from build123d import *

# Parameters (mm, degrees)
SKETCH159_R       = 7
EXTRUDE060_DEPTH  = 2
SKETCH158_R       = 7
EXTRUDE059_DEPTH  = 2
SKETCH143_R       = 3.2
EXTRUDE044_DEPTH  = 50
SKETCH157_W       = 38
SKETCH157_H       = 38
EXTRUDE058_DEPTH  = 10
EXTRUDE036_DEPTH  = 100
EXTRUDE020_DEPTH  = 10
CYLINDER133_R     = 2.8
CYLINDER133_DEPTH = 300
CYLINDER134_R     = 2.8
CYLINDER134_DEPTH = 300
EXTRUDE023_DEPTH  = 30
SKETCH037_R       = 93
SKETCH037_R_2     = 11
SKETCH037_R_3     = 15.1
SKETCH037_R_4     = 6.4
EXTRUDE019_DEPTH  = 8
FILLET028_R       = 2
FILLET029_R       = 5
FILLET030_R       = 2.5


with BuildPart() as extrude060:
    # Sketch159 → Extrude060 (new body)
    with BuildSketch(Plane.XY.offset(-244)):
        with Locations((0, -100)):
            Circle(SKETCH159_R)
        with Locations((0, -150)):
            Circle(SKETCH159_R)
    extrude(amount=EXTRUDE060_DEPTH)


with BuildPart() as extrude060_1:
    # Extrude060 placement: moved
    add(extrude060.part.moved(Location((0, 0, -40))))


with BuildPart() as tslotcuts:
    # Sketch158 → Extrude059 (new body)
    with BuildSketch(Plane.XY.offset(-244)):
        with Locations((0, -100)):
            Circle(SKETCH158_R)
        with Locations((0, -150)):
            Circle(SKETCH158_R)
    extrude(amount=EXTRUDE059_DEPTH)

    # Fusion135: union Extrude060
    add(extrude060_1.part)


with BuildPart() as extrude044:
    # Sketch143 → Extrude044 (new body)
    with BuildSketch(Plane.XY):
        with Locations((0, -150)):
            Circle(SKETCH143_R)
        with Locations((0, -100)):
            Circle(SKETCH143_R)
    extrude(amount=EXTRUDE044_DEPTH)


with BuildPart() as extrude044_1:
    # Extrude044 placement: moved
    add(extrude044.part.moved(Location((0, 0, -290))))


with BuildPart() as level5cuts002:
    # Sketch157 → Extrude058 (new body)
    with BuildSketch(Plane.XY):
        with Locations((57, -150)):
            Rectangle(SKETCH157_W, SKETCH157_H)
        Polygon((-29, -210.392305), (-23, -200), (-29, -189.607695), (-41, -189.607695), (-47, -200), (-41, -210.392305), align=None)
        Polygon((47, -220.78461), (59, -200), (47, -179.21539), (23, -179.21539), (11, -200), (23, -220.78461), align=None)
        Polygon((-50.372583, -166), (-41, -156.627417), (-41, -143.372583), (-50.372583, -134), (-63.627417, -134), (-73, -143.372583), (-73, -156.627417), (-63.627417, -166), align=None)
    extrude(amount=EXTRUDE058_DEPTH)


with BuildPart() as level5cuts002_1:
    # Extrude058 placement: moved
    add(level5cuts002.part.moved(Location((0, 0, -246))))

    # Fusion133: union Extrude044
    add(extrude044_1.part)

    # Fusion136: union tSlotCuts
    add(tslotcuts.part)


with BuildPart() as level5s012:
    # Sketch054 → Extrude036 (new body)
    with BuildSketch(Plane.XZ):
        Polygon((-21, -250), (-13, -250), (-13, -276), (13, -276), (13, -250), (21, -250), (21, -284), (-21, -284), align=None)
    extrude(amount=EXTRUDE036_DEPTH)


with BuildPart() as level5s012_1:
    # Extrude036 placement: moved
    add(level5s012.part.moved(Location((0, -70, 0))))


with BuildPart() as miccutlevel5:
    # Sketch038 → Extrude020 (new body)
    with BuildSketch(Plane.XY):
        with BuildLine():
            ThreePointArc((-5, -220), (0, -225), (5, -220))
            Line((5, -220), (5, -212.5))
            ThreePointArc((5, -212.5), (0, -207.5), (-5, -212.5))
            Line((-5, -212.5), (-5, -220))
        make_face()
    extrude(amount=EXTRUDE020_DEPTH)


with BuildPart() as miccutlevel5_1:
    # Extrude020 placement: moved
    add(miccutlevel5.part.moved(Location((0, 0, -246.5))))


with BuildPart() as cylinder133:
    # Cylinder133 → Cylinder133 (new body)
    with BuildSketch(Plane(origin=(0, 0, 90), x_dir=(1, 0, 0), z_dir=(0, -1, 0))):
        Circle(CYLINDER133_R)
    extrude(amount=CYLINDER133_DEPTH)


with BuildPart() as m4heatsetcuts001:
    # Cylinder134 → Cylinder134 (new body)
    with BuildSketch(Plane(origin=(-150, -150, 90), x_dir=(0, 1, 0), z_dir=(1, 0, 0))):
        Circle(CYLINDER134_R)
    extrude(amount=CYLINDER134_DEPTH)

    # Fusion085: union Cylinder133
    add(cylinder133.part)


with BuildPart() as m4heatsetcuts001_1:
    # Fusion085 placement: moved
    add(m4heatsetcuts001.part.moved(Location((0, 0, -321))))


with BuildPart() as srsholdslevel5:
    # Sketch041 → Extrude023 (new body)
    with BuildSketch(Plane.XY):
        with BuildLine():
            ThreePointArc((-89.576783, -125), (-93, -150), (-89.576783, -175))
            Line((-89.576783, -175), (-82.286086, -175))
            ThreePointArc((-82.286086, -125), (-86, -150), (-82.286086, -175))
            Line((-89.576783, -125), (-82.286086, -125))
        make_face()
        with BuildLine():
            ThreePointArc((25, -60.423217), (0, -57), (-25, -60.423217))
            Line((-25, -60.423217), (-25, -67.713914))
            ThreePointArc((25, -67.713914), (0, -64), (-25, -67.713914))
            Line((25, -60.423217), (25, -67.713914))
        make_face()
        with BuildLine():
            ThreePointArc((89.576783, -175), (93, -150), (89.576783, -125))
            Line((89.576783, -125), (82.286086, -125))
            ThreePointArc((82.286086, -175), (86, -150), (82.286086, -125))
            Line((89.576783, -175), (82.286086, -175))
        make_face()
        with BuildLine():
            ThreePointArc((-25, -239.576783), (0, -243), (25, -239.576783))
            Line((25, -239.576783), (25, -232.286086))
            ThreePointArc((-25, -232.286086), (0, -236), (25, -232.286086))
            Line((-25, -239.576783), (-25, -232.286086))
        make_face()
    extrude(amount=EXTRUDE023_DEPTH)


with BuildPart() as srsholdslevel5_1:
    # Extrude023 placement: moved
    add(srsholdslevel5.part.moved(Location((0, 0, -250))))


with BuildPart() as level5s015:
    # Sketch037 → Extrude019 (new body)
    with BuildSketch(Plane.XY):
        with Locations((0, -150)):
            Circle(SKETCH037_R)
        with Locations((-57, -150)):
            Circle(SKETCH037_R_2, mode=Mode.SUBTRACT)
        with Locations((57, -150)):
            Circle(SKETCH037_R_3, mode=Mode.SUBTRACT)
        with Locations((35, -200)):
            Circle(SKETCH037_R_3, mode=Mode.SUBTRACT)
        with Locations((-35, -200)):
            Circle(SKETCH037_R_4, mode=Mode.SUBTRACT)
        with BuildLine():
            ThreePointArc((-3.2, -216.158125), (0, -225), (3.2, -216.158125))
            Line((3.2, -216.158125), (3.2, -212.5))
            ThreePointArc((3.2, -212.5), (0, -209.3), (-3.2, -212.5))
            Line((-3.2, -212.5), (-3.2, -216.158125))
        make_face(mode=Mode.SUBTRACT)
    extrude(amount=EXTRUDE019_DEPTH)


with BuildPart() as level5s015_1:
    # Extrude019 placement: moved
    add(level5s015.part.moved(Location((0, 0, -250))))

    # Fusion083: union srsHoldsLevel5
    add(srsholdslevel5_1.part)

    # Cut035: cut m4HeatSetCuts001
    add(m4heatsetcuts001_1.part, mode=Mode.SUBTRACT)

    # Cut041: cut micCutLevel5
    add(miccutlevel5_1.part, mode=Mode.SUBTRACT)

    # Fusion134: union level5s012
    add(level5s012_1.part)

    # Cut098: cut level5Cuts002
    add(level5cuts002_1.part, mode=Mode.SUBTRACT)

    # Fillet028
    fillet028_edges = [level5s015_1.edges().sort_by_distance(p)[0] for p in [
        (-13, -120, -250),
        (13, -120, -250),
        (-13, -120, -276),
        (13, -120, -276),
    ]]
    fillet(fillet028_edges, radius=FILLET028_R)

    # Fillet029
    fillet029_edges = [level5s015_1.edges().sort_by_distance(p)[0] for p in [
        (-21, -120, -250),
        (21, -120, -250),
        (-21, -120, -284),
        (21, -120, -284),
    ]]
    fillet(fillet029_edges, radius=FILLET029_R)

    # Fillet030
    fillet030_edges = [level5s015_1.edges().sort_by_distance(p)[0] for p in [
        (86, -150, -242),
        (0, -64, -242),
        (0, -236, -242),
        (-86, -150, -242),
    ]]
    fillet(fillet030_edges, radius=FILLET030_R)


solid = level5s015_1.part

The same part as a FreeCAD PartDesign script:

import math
import FreeCAD as App
import Part
import Sketcher
from FreeCAD import Vector
Q = App.Units.Quantity


def edges_at(feature, points):
    """Names of the edges that pass closest to the given points."""
    edges = feature.Shape.Edges
    near = lambda p: min(range(len(edges)), key=lambda i: edges[i].distToShape(Part.Vertex(*p))[0])
    return sorted({f"Edge{near(p) + 1}" for p in points})


def add_polygon(sketch, points):
    """Adds a closed chain of lines whose ends are joined by coincident constraints."""
    first, n = sketch.GeometryCount, len(points)
    for a, b in zip(points, points[1:] + points[:1]):
        sketch.addGeometry(Part.LineSegment(App.Vector(*a, 0), App.Vector(*b, 0)), False)
    for i in range(n):
        sketch.addConstraint(Sketcher.Constraint("Coincident", first + i, 2, first + (i + 1) % n, 1))

doc = App.newDocument("Part")
body = doc.addObject("PartDesign::Body", "Body")
body.AllowCompound = True

sketch1 = body.newObject("Sketcher::SketchObject", "Sketch")
sketch1.AttachmentSupport = (doc.getObject("XY_Plane"), [""])
sketch1.MapMode = "FlatFace"
sketch1.AttachmentOffset = App.Placement(Vector(0, 0, -244), App.Rotation())
sketch1.addGeometry(Part.Circle(Vector(0, -100, 0), Vector(0, 0, 1), 7), False)
sketch1.addGeometry(Part.Circle(Vector(0, -150, 0), Vector(0, 0, 1), 7), False)
sketch1.addConstraint(Sketcher.Constraint("Equal", 0, 1))
sketch1.addConstraint(Sketcher.Constraint("PointOnObject", 0, 3, -2))
sketch1.addConstraint(Sketcher.Constraint("PointOnObject", 1, 3, -2))
sketch1.addConstraint(Sketcher.Constraint("Diameter", 0, Q("14 mm")))
sketch1.addConstraint(Sketcher.Constraint("DistanceY", 0, 3, -1, 1, Q("100 mm")))
sketch1.addConstraint(Sketcher.Constraint("DistanceY", 1, 3, -1, 1, Q("150 mm")))
pad1 = body.newObject("PartDesign::Pad", "Pad")
pad1.Profile = sketch1
pad1.Length = 2
body2 = doc.addObject("PartDesign::Body", "Body001")
body2.AllowCompound = True
doc.recompute()

body.Placement = App.Placement(Vector(0, 0, -40), App.Rotation(Vector(0, 0, 1), 0))
boolean = body2.newObject("PartDesign::Boolean", "Boolean")
boolean.Type = "Fuse"
boolean.addObjects([body])
body3 = doc.addObject("PartDesign::Body", "Body002")
body3.AllowCompound = True

sketch2 = body3.newObject("Sketcher::SketchObject", "Sketch001")
sketch2.AttachmentSupport = (doc.getObject("XY_Plane002"), [""])
sketch2.MapMode = "FlatFace"
sketch2.AttachmentOffset = App.Placement(Vector(0, 0, -244), App.Rotation())
sketch2.addGeometry(Part.Circle(Vector(0, -100, 0), Vector(0, 0, 1), 7), False)
sketch2.addGeometry(Part.Circle(Vector(0, -150, 0), Vector(0, 0, 1), 7), False)
sketch2.addConstraint(Sketcher.Constraint("Equal", 0, 1))
sketch2.addConstraint(Sketcher.Constraint("PointOnObject", 0, 3, -2))
sketch2.addConstraint(Sketcher.Constraint("PointOnObject", 1, 3, -2))
sketch2.addConstraint(Sketcher.Constraint("Diameter", 0, Q("14 mm")))
sketch2.addConstraint(Sketcher.Constraint("DistanceY", 0, 3, -1, 1, Q("100 mm")))
sketch2.addConstraint(Sketcher.Constraint("DistanceY", 1, 3, -1, 1, Q("150 mm")))
pad2 = body3.newObject("PartDesign::Pad", "Pad001")
pad2.Profile = sketch2
pad2.Length = 2
doc.recompute()

boolean2 = body3.newObject("PartDesign::Boolean", "Boolean001")
boolean2.Type = "Fuse"
boolean2.addObjects([body2])
body4 = doc.addObject("PartDesign::Body", "Body003")
body4.AllowCompound = True

sketch3 = body4.newObject("Sketcher::SketchObject", "Sketch002")
sketch3.AttachmentSupport = (doc.getObject("XY_Plane003"), [""])
sketch3.MapMode = "FlatFace"
sketch3.addGeometry(Part.Circle(Vector(0, -150, 0), Vector(0, 0, 1), 3.2), False)
sketch3.addGeometry(Part.Circle(Vector(0, -100, 0), Vector(0, 0, 1), 3.2), False)
sketch3.addConstraint(Sketcher.Constraint("Equal", 0, 1))
sketch3.addConstraint(Sketcher.Constraint("PointOnObject", 0, 3, -2))
sketch3.addConstraint(Sketcher.Constraint("PointOnObject", 1, 3, -2))
sketch3.addConstraint(Sketcher.Constraint("Diameter", 0, Q("6.4 mm")))
sketch3.addConstraint(Sketcher.Constraint("DistanceY", 0, 3, -1, 1, Q("150 mm")))
sketch3.addConstraint(Sketcher.Constraint("DistanceY", 1, 3, -1, 1, Q("100 mm")))
pad3 = body4.newObject("PartDesign::Pad", "Pad002")
pad3.Profile = sketch3
pad3.Length = 50
body5 = doc.addObject("PartDesign::Body", "Body004")
body5.AllowCompound = True
doc.recompute()

body4.Placement = App.Placement(Vector(0, 0, -290), App.Rotation(Vector(0, 0, 1), 0))
boolean3 = body5.newObject("PartDesign::Boolean", "Boolean002")
boolean3.Type = "Fuse"
boolean3.addObjects([body4])
body6 = doc.addObject("PartDesign::Body", "Body005")
body6.AllowCompound = True

sketch4 = body6.newObject("Sketcher::SketchObject", "Sketch003")
sketch4.AttachmentSupport = (doc.getObject("XY_Plane005"), [""])
sketch4.MapMode = "FlatFace"
add_polygon(sketch4, [(38, -131), (38, -169), (76, -169), (76, -131)])
add_polygon(sketch4, [(-29, -210.392305), (-23, -200), (-29, -189.607695), (-41, -189.607695), (-47, -200), (-41, -210.392305)])
add_polygon(sketch4, [(47, -220.78461), (59, -200), (47, -179.21539), (23, -179.21539), (11, -200), (23, -220.78461)])
add_polygon(sketch4, [(-50.372583, -166), (-41, -156.627417), (-41, -143.372583), (-50.372583, -134), (-63.627417, -134), (-73, -143.372583), (-73, -156.627417), (-63.627417, -166)])
sketch4.addConstraint(Sketcher.Constraint("Vertical", 0))
sketch4.addConstraint(Sketcher.Constraint("Horizontal", 1))
sketch4.addConstraint(Sketcher.Constraint("Vertical", 2))
sketch4.addConstraint(Sketcher.Constraint("Horizontal", 3))
sketch4.addConstraint(Sketcher.Constraint("Horizontal", 6))
sketch4.addConstraint(Sketcher.Constraint("Horizontal", 9))
sketch4.addConstraint(Sketcher.Constraint("Horizontal", 12))
sketch4.addConstraint(Sketcher.Constraint("Horizontal", 15))
sketch4.addConstraint(Sketcher.Constraint("Vertical", 17))
sketch4.addConstraint(Sketcher.Constraint("Horizontal", 19))
sketch4.addConstraint(Sketcher.Constraint("Vertical", 21))
sketch4.addConstraint(Sketcher.Constraint("Horizontal", 23))
sketch4.addConstraint(Sketcher.Constraint("Parallel", 4, 7))
sketch4.addConstraint(Sketcher.Constraint("Parallel", 5, 8))
sketch4.addConstraint(Sketcher.Constraint("Parallel", 7, 10))
sketch4.addConstraint(Sketcher.Constraint("Parallel", 8, 11))
sketch4.addConstraint(Sketcher.Constraint("Parallel", 10, 13))
sketch4.addConstraint(Sketcher.Constraint("Parallel", 11, 14))
sketch4.addConstraint(Sketcher.Constraint("Perpendicular", 16, 18))
sketch4.addConstraint(Sketcher.Constraint("Perpendicular", 18, 20))
sketch4.addConstraint(Sketcher.Constraint("Perpendicular", 20, 22))
sketch4.addConstraint(Sketcher.Constraint("Horizontal", 4, 2, 7, 2))
sketch4.addConstraint(Sketcher.Constraint("Horizontal", 7, 2, 10, 2))
sketch4.addConstraint(Sketcher.Constraint("Horizontal", 10, 2, 13, 2))
sketch4.addConstraint(Sketcher.Constraint("Horizontal", 17, 2, 20, 2))
sketch4.addConstraint(Sketcher.Constraint("Horizontal", 16, 2, 21, 2))
sketch4.addConstraint(Sketcher.Constraint("Vertical", 6, 2, 8, 2))
sketch4.addConstraint(Sketcher.Constraint("Vertical", 5, 2, 9, 2))
sketch4.addConstraint(Sketcher.Constraint("Vertical", 12, 2, 14, 2))
sketch4.addConstraint(Sketcher.Constraint("Vertical", 8, 2, 16, 2))
sketch4.addConstraint(Sketcher.Constraint("Vertical", 19, 2, 22, 2))
sketch4.addConstraint(Sketcher.Constraint("Vertical", 18, 2, 23, 2))
sketch4.addConstraint(Sketcher.Constraint("Equal", 3, 0))
sketch4.addConstraint(Sketcher.Constraint("Equal", 23, 17))
sketch4.addConstraint(Sketcher.Constraint("DistanceX", 1, 1, 1, 2, Q("38 mm")))
sketch4.addConstraint(Sketcher.Constraint("DistanceX", 6, 2, 6, 1, Q("12 mm")))
sketch4.addConstraint(Sketcher.Constraint("DistanceX", 12, 2, 12, 1, Q("24 mm")))
sketch4.addConstraint(Sketcher.Constraint("Angle", 4, Q("60 deg")))
sketch4.addConstraint(Sketcher.Constraint("Distance", 4, Q("12 mm")))
sketch4.addConstraint(Sketcher.Constraint("Distance", 10, Q("24 mm")))
sketch4.addConstraint(Sketcher.Constraint("DistanceX", -1, 1, 0, 2, Q("38 mm")))
sketch4.addConstraint(Sketcher.Constraint("DistanceY", 0, 2, -1, 1, Q("169 mm")))
sketch4.addConstraint(Sketcher.Constraint("DistanceX", 4, 2, -1, 1, Q("23 mm")))
sketch4.addConstraint(Sketcher.Constraint("DistanceY", 4, 2, -1, 1, Q("200 mm")))
sketch4.addConstraint(Sketcher.Constraint("DistanceX", -1, 1, 10, 2, Q("59 mm")))
sketch4.addConstraint(Sketcher.Constraint("DistanceY", 18, 2, -1, 1, Q("134 mm")))
sketch4.addConstraint(Sketcher.Constraint("DistanceX", 20, 2, -1, 1, Q("73 mm")))
sketch4.addConstraint(Sketcher.Constraint("DistanceX", 19, 2, 19, 1, Q("13.254834 mm")))
pad4 = body6.newObject("PartDesign::Pad", "Pad003")
pad4.Profile = sketch4
pad4.Length = 10
body7 = doc.addObject("PartDesign::Body", "Body006")
body7.AllowCompound = True
doc.recompute()

body6.Placement = App.Placement(Vector(0, 0, -246), App.Rotation(Vector(0, 0, 1), 0))
boolean4 = body7.newObject("PartDesign::Boolean", "Boolean003")
boolean4.Type = "Fuse"
boolean4.addObjects([body6])
doc.recompute()

boolean5 = body7.newObject("PartDesign::Boolean", "Boolean004")
boolean5.Type = "Fuse"
boolean5.addObjects([body5])
doc.recompute()

boolean6 = body7.newObject("PartDesign::Boolean", "Boolean005")
boolean6.Type = "Fuse"
boolean6.addObjects([body3])
body8 = doc.addObject("PartDesign::Body", "Body007")

sketch5 = body8.newObject("Sketcher::SketchObject", "Sketch004")
sketch5.AttachmentSupport = (doc.getObject("XZ_Plane007"), [""])
sketch5.MapMode = "FlatFace"
add_polygon(sketch5, [(-13, -250), (-21, -250), (-21, -284), (21, -284), (21, -250), (13, -250), (13, -276), (-13, -276)])
sketch5.addConstraint(Sketcher.Constraint("Horizontal", 0))
sketch5.addConstraint(Sketcher.Constraint("Vertical", 1))
sketch5.addConstraint(Sketcher.Constraint("Horizontal", 2))
sketch5.addConstraint(Sketcher.Constraint("Vertical", 3))
sketch5.addConstraint(Sketcher.Constraint("Horizontal", 4))
sketch5.addConstraint(Sketcher.Constraint("Vertical", 5))
sketch5.addConstraint(Sketcher.Constraint("Horizontal", 6))
sketch5.addConstraint(Sketcher.Constraint("Vertical", 7))
sketch5.addConstraint(Sketcher.Constraint("Symmetric", 0, 2, 3, 2, -2))
sketch5.addConstraint(Sketcher.Constraint("Equal", 0, 4))
sketch5.addConstraint(Sketcher.Constraint("Equal", 6, 5))
sketch5.addConstraint(Sketcher.Constraint("DistanceX", 0, 2, 0, 1, Q("8 mm")))
sketch5.addConstraint(Sketcher.Constraint("DistanceX", 2, 1, 2, 2, Q("42 mm")))
sketch5.addConstraint(Sketcher.Constraint("DistanceY", 1, 2, 1, 1, Q("34 mm")))
sketch5.addConstraint(Sketcher.Constraint("DistanceY", 0, 2, -1, 1, Q("250 mm")))
pad5 = body8.newObject("PartDesign::Pad", "Pad004")
pad5.Profile = sketch5
pad5.Length = 100
body9 = doc.addObject("PartDesign::Body", "Body008")
doc.recompute()

body8.Placement = App.Placement(Vector(0, -70, 0), App.Rotation(Vector(0, 0, 1), 0))
boolean7 = body9.newObject("PartDesign::Boolean", "Boolean006")
boolean7.Type = "Fuse"
boolean7.addObjects([body8])
body10 = doc.addObject("PartDesign::Body", "Body009")

sketch6 = body10.newObject("Sketcher::SketchObject", "Sketch005")
sketch6.AttachmentSupport = (doc.getObject("XY_Plane009"), [""])
sketch6.MapMode = "FlatFace"
sketch6.addGeometry(Part.ArcOfCircle(Part.Circle(Vector(0, -220, 0), Vector(0, 0, 1), 5), math.radians(180), math.radians(360)), False)
sketch6.addGeometry(Part.LineSegment(Vector(5, -220, 0), Vector(5, -212.5, 0)), False)
sketch6.addGeometry(Part.ArcOfCircle(Part.Circle(Vector(0, -212.5, 0), Vector(0, 0, 1), 5), math.radians(0), math.radians(180)), False)
sketch6.addGeometry(Part.LineSegment(Vector(-5, -212.5, 0), Vector(-5, -220, 0)), False)
sketch6.addConstraint(Sketcher.Constraint("Tangent", 0, 2, 1, 1))
sketch6.addConstraint(Sketcher.Constraint("Tangent", 1, 2, 2, 1))
sketch6.addConstraint(Sketcher.Constraint("Tangent", 2, 2, 3, 1))
sketch6.addConstraint(Sketcher.Constraint("Tangent", 3, 2, 0, 1))
sketch6.addConstraint(Sketcher.Constraint("Vertical", 1))
sketch6.addConstraint(Sketcher.Constraint("Vertical", 3))
sketch6.addConstraint(Sketcher.Constraint("PointOnObject", 0, 3, -2))
sketch6.addConstraint(Sketcher.Constraint("Radius", 0, Q("5 mm")))
sketch6.addConstraint(Sketcher.Constraint("DistanceY", 1, 1, 1, 2, Q("7.5 mm")))
sketch6.addConstraint(Sketcher.Constraint("DistanceY", 0, 3, -1, 1, Q("220 mm")))
pad6 = body10.newObject("PartDesign::Pad", "Pad005")
pad6.Profile = sketch6
pad6.Length = 10
body11 = doc.addObject("PartDesign::Body", "Body010")
doc.recompute()

body10.Placement = App.Placement(Vector(0, 0, -246.5), App.Rotation(Vector(0, 0, 1), 0))
boolean8 = body11.newObject("PartDesign::Boolean", "Boolean007")
boolean8.Type = "Fuse"
boolean8.addObjects([body10])
body12 = doc.addObject("PartDesign::Body", "Body011")

sketch7 = body12.newObject("Sketcher::SketchObject", "Sketch006")
sketch7.AttachmentSupport = (doc.getObject("XZ_Plane011"), [""])
sketch7.MapMode = "FlatFace"
sketch7.addGeometry(Part.Circle(Vector(0, 90, 0), Vector(0, 0, 1), 2.8), False)
sketch7.addConstraint(Sketcher.Constraint("PointOnObject", 0, 3, -2))
sketch7.addConstraint(Sketcher.Constraint("Diameter", 0, Q("5.6 mm")))
sketch7.addConstraint(Sketcher.Constraint("DistanceY", -1, 1, 0, 3, Q("90 mm")))
pad7 = body12.newObject("PartDesign::Pad", "Pad006")
pad7.Profile = sketch7
pad7.Length = 300
body13 = doc.addObject("PartDesign::Body", "Body012")

sketch8 = body13.newObject("Sketcher::SketchObject", "Sketch007")
sketch8.AttachmentSupport = (doc.getObject("YZ_Plane012"), [""])
sketch8.MapMode = "FlatFace"
sketch8.AttachmentOffset = App.Placement(Vector(0, 0, -150), App.Rotation())
sketch8.addGeometry(Part.Circle(Vector(-150, 90, 0), Vector(0, 0, 1), 2.8), False)
sketch8.addConstraint(Sketcher.Constraint("Diameter", 0, Q("5.6 mm")))
sketch8.addConstraint(Sketcher.Constraint("DistanceX", 0, 3, -1, 1, Q("150 mm")))
sketch8.addConstraint(Sketcher.Constraint("DistanceY", -1, 1, 0, 3, Q("90 mm")))
pad8 = body13.newObject("PartDesign::Pad", "Pad007")
pad8.Profile = sketch8
pad8.Length = 300
doc.recompute()

boolean9 = body13.newObject("PartDesign::Boolean", "Boolean008")
boolean9.Type = "Fuse"
boolean9.addObjects([body12])
body14 = doc.addObject("PartDesign::Body", "Body013")
doc.recompute()

body13.Placement = App.Placement(Vector(0, 0, -321), App.Rotation(Vector(0, 0, 1), 0))
boolean10 = body14.newObject("PartDesign::Boolean", "Boolean009")
boolean10.Type = "Fuse"
boolean10.addObjects([body13])
body15 = doc.addObject("PartDesign::Body", "Body014")
body15.AllowCompound = True

sketch9 = body15.newObject("Sketcher::SketchObject", "Sketch008")
sketch9.AttachmentSupport = (doc.getObject("XY_Plane014"), [""])
sketch9.MapMode = "FlatFace"
sketch9.addGeometry(Part.ArcOfCircle(Part.Circle(Vector(0.000008, -150, 0), Vector(0, 0, 1), 93.000008), math.radians(164.406106), math.radians(195.593894)), False)
sketch9.addGeometry(Part.LineSegment(Vector(-89.576783, -175, 0), Vector(-82.286086, -175, 0)), False)
sketch9.addGeometry(Part.ArcOfCircle(Part.Circle(Vector(-0.000007, -150, 0), Vector(0, 0, 1), 85.999993), math.radians(163.100269), math.radians(196.899731)), False)
sketch9.addGeometry(Part.LineSegment(Vector(-82.286086, -125, 0), Vector(-89.576783, -125, 0)), False)
sketch9.addGeometry(Part.ArcOfCircle(Part.Circle(Vector(0, -150.000008, 0), Vector(0, 0, 1), 93.000008), math.radians(74.406106), math.radians(105.593894)), False)
sketch9.addGeometry(Part.LineSegment(Vector(-25, -60.423217, 0), Vector(-25, -67.713914, 0)), False)
sketch9.addGeometry(Part.ArcOfCircle(Part.Circle(Vector(0, -149.999993, 0), Vector(0, 0, 1), 85.999993), math.radians(73.100269), math.radians(106.899731)), False)
sketch9.addGeometry(Part.LineSegment(Vector(25, -67.713914, 0), Vector(25, -60.423217, 0)), False)
sketch9.addGeometry(Part.ArcOfCircle(Part.Circle(Vector(-0.000008, -150, 0), Vector(0, 0, 1), 93.000008), math.radians(-15.593894), math.radians(15.593894)), False)
sketch9.addGeometry(Part.LineSegment(Vector(89.576783, -125, 0), Vector(82.286086, -125, 0)), False)
sketch9.addGeometry(Part.ArcOfCircle(Part.Circle(Vector(0.000007, -150, 0), Vector(0, 0, 1), 85.999993), math.radians(-16.899731), math.radians(16.899731)), False)
sketch9.addGeometry(Part.LineSegment(Vector(82.286086, -175, 0), Vector(89.576783, -175, 0)), False)
sketch9.addGeometry(Part.ArcOfCircle(Part.Circle(Vector(0, -149.999992, 0), Vector(0, 0, 1), 93.000008), math.radians(-105.593894), math.radians(-74.406106)), False)
sketch9.addGeometry(Part.LineSegment(Vector(25, -239.576783, 0), Vector(25, -232.286086, 0)), False)
sketch9.addGeometry(Part.ArcOfCircle(Part.Circle(Vector(0, -150.000007, 0), Vector(0, 0, 1), 85.999993), math.radians(-106.899731), math.radians(-73.100269)), False)
sketch9.addGeometry(Part.LineSegment(Vector(-25, -232.286086, 0), Vector(-25, -239.576783, 0)), False)
sketch9.addConstraint(Sketcher.Constraint("Coincident", 0, 2, 1, 1))
sketch9.addConstraint(Sketcher.Constraint("Coincident", 1, 2, 2, 2))
sketch9.addConstraint(Sketcher.Constraint("Coincident", 2, 1, 3, 1))
sketch9.addConstraint(Sketcher.Constraint("Coincident", 3, 2, 0, 1))
sketch9.addConstraint(Sketcher.Constraint("Coincident", 4, 2, 5, 1))
sketch9.addConstraint(Sketcher.Constraint("Coincident", 5, 2, 6, 2))
sketch9.addConstraint(Sketcher.Constraint("Coincident", 6, 1, 7, 1))
sketch9.addConstraint(Sketcher.Constraint("Coincident", 7, 2, 4, 1))
sketch9.addConstraint(Sketcher.Constraint("Coincident", 8, 2, 9, 1))
sketch9.addConstraint(Sketcher.Constraint("Coincident", 9, 2, 10, 2))
sketch9.addConstraint(Sketcher.Constraint("Coincident", 10, 1, 11, 1))
sketch9.addConstraint(Sketcher.Constraint("Coincident", 11, 2, 8, 1))
sketch9.addConstraint(Sketcher.Constraint("Coincident", 12, 2, 13, 1))
sketch9.addConstraint(Sketcher.Constraint("Coincident", 13, 2, 14, 2))
sketch9.addConstraint(Sketcher.Constraint("Coincident", 14, 1, 15, 1))
sketch9.addConstraint(Sketcher.Constraint("Coincident", 15, 2, 12, 1))
sketch9.addConstraint(Sketcher.Constraint("Horizontal", 1))
sketch9.addConstraint(Sketcher.Constraint("Horizontal", 3))
sketch9.addConstraint(Sketcher.Constraint("Vertical", 5))
sketch9.addConstraint(Sketcher.Constraint("Vertical", 7))
sketch9.addConstraint(Sketcher.Constraint("Horizontal", 9))
sketch9.addConstraint(Sketcher.Constraint("Horizontal", 11))
sketch9.addConstraint(Sketcher.Constraint("Vertical", 13))
sketch9.addConstraint(Sketcher.Constraint("Vertical", 15))
sketch9.addConstraint(Sketcher.Constraint("Coincident", 6, 3, 2, 3))
sketch9.addConstraint(Sketcher.Constraint("Coincident", 8, 3, 2, 3))
sketch9.addConstraint(Sketcher.Constraint("Coincident", 10, 3, 0, 3))
sketch9.addConstraint(Sketcher.Constraint("Coincident", 12, 3, 6, 3))
sketch9.addConstraint(Sketcher.Constraint("Coincident", 14, 3, 2, 3))
sketch9.addConstraint(Sketcher.Constraint("PointOnObject", 4, 3, -2))
sketch9.addConstraint(Sketcher.Constraint("PointOnObject", 6, 3, -2))
sketch9.addConstraint(Sketcher.Constraint("DistanceY", 0, 3, -1, 1, Q("150 mm")))
sketch9.addConstraint(Sketcher.Constraint("DistanceY", 2, 3, -1, 1, Q("150 mm")))
sketch9.addConstraint(Sketcher.Constraint("DistanceY", 0, 2, -1, 1, Q("175 mm")))
sketch9.addConstraint(Sketcher.Constraint("DistanceY", 2, 1, -1, 1, Q("125 mm")))
sketch9.addConstraint(Sketcher.Constraint("DistanceX", 4, 2, -1, 1, Q("25 mm")))
sketch9.addConstraint(Sketcher.Constraint("DistanceX", -1, 1, 6, 1, Q("25 mm")))
sketch9.addConstraint(Sketcher.Constraint("DistanceY", 8, 2, -1, 1, Q("125 mm")))
sketch9.addConstraint(Sketcher.Constraint("DistanceY", 10, 1, -1, 1, Q("175 mm")))
sketch9.addConstraint(Sketcher.Constraint("DistanceX", -1, 1, 12, 2, Q("25 mm")))
sketch9.addConstraint(Sketcher.Constraint("DistanceX", 14, 1, -1, 1, Q("25 mm")))
sketch9.addConstraint(Sketcher.Constraint("Radius", 0, Q("93.000008 mm")))
sketch9.addConstraint(Sketcher.Constraint("Radius", 2, Q("85.999993 mm")))
sketch9.addConstraint(Sketcher.Constraint("Radius", 4, Q("93.000008 mm")))
sketch9.addConstraint(Sketcher.Constraint("Radius", 6, Q("85.999993 mm")))
sketch9.addConstraint(Sketcher.Constraint("Radius", 8, Q("93.000008 mm")))
sketch9.addConstraint(Sketcher.Constraint("Radius", 10, Q("85.999993 mm")))
sketch9.addConstraint(Sketcher.Constraint("Radius", 12, Q("93.000008 mm")))
sketch9.addConstraint(Sketcher.Constraint("Radius", 14, Q("85.999993 mm")))
sketch9.addConstraint(Sketcher.Constraint("DistanceX", 1, 1, 1, 2, Q("7.290697 mm")))
sketch9.addConstraint(Sketcher.Constraint("DistanceY", 5, 2, 5, 1, Q("7.290697 mm")))
pad9 = body15.newObject("PartDesign::Pad", "Pad008")
pad9.Profile = sketch9
pad9.Length = 30
body16 = doc.addObject("PartDesign::Body", "Body015")
body16.AllowCompound = True
doc.recompute()

body15.Placement = App.Placement(Vector(0, 0, -250), App.Rotation(Vector(0, 0, 1), 0))
boolean11 = body16.newObject("PartDesign::Boolean", "Boolean010")
boolean11.Type = "Fuse"
boolean11.addObjects([body15])
body17 = doc.addObject("PartDesign::Body", "Body016")

sketch10 = body17.newObject("Sketcher::SketchObject", "Sketch009")
sketch10.AttachmentSupport = (doc.getObject("XY_Plane016"), [""])
sketch10.MapMode = "FlatFace"
sketch10.addGeometry(Part.Circle(Vector(0, -150, 0), Vector(0, 0, 1), 93), False)
sketch10.addGeometry(Part.ArcOfCircle(Part.Circle(Vector(0, -220, 0), Vector(0, 0, 1), 5), math.radians(129.791818), math.radians(410.208182)), False)
sketch10.addGeometry(Part.LineSegment(Vector(-3.2, -216.158125, 0), Vector(-3.2, -212.5, 0)), False)
sketch10.addGeometry(Part.ArcOfCircle(Part.Circle(Vector(0, -212.5, 0), Vector(0, 0, 1), 3.2), math.radians(0), math.radians(180)), False)
sketch10.addGeometry(Part.LineSegment(Vector(3.2, -212.5, 0), Vector(3.2, -216.158125, 0)), False)
sketch10.addGeometry(Part.Circle(Vector(-35, -200, 0), Vector(0, 0, 1), 6.4), False)
sketch10.addGeometry(Part.Circle(Vector(35, -200, 0), Vector(0, 0, 1), 15.1), False)
sketch10.addGeometry(Part.Circle(Vector(-57, -150, 0), Vector(0, 0, 1), 11), False)
sketch10.addGeometry(Part.Circle(Vector(57, -150, 0), Vector(0, 0, 1), 15.1), False)
sketch10.addConstraint(Sketcher.Constraint("Coincident", 1, 1, 2, 1))
sketch10.addConstraint(Sketcher.Constraint("Tangent", 2, 2, 3, 2))
sketch10.addConstraint(Sketcher.Constraint("Tangent", 3, 1, 4, 1))
sketch10.addConstraint(Sketcher.Constraint("Coincident", 4, 2, 1, 2))
sketch10.addConstraint(Sketcher.Constraint("Vertical", 2))
sketch10.addConstraint(Sketcher.Constraint("Vertical", 4))
sketch10.addConstraint(Sketcher.Constraint("Equal", 6, 8))
sketch10.addConstraint(Sketcher.Constraint("Symmetric", 5, 3, 6, 3, -2))
sketch10.addConstraint(Sketcher.Constraint("Symmetric", 7, 3, 8, 3, -2))
sketch10.addConstraint(Sketcher.Constraint("Symmetric", 1, 1, 4, 2, -2))
sketch10.addConstraint(Sketcher.Constraint("PointOnObject", 0, 3, -2))
sketch10.addConstraint(Sketcher.Constraint("Horizontal", 0, 3, 7, 3))
sketch10.addConstraint(Sketcher.Constraint("Diameter", 0, Q("186 mm")))
sketch10.addConstraint(Sketcher.Constraint("Diameter", 7, Q("22 mm")))
sketch10.addConstraint(Sketcher.Constraint("Radius", 1, Q("5 mm")))
sketch10.addConstraint(Sketcher.Constraint("Diameter", 5, Q("12.8 mm")))
sketch10.addConstraint(Sketcher.Constraint("Diameter", 6, Q("30.2 mm")))
sketch10.addConstraint(Sketcher.Constraint("Radius", 3, Q("3.2 mm")))
sketch10.addConstraint(Sketcher.Constraint("DistanceY", 0, 3, -1, 1, Q("150 mm")))
sketch10.addConstraint(Sketcher.Constraint("DistanceY", 1, 3, -1, 1, Q("220 mm")))
sketch10.addConstraint(Sketcher.Constraint("DistanceX", 5, 3, -1, 1, Q("35 mm")))
sketch10.addConstraint(Sketcher.Constraint("DistanceY", 5, 3, -1, 1, Q("200 mm")))
sketch10.addConstraint(Sketcher.Constraint("DistanceX", 7, 3, -1, 1, Q("57 mm")))
sketch10.addConstraint(Sketcher.Constraint("DistanceY", 3, 3, -1, 1, Q("212.5 mm")))
pad10 = body17.newObject("PartDesign::Pad", "Pad009")
pad10.Profile = sketch10
pad10.Length = 8
body18 = doc.addObject("PartDesign::Body", "Body017")
doc.recompute()

body17.Placement = App.Placement(Vector(0, 0, -250), App.Rotation(Vector(0, 0, 1), 0))
boolean12 = body18.newObject("PartDesign::Boolean", "Boolean011")
boolean12.Type = "Fuse"
boolean12.addObjects([body17])
doc.recompute()

boolean13 = body18.newObject("PartDesign::Boolean", "Boolean012")
boolean13.Type = "Fuse"
boolean13.addObjects([body16])
doc.recompute()

boolean14 = body18.newObject("PartDesign::Boolean", "Boolean013")
boolean14.Type = "Cut"
boolean14.addObjects([body14])
doc.recompute()

boolean15 = body18.newObject("PartDesign::Boolean", "Boolean014")
boolean15.Type = "Cut"
boolean15.addObjects([body11])
doc.recompute()

boolean16 = body18.newObject("PartDesign::Boolean", "Boolean015")
boolean16.Type = "Fuse"
boolean16.addObjects([body9])
doc.recompute()

boolean17 = body18.newObject("PartDesign::Boolean", "Boolean016")
boolean17.Type = "Cut"
boolean17.addObjects([body7])
doc.recompute()

fillet = body18.newObject("PartDesign::Fillet", "Fillet")
fillet.Base = (boolean17, edges_at(boolean17, [
    (-13, -120, -250),
    (13, -120, -250),
    (-13, -120, -276),
    (13, -120, -276),
]))
fillet.Radius = 2
doc.recompute()

fillet2 = body18.newObject("PartDesign::Fillet", "Fillet001")
fillet2.Base = (fillet, edges_at(fillet, [
    (-21, -120, -250),
    (21, -120, -250),
    (-21, -120, -284),
    (21, -120, -284),
]))
fillet2.Radius = 5
doc.recompute()

fillet3 = body18.newObject("PartDesign::Fillet", "Fillet002")
fillet3.Base = (fillet2, edges_at(fillet2, [
    (86, -150, -242),
    (0, -64, -242),
    (0, -236, -242),
    (-86, -150, -242),
]))
fillet3.Radius = 2.5

doc.recompute()
